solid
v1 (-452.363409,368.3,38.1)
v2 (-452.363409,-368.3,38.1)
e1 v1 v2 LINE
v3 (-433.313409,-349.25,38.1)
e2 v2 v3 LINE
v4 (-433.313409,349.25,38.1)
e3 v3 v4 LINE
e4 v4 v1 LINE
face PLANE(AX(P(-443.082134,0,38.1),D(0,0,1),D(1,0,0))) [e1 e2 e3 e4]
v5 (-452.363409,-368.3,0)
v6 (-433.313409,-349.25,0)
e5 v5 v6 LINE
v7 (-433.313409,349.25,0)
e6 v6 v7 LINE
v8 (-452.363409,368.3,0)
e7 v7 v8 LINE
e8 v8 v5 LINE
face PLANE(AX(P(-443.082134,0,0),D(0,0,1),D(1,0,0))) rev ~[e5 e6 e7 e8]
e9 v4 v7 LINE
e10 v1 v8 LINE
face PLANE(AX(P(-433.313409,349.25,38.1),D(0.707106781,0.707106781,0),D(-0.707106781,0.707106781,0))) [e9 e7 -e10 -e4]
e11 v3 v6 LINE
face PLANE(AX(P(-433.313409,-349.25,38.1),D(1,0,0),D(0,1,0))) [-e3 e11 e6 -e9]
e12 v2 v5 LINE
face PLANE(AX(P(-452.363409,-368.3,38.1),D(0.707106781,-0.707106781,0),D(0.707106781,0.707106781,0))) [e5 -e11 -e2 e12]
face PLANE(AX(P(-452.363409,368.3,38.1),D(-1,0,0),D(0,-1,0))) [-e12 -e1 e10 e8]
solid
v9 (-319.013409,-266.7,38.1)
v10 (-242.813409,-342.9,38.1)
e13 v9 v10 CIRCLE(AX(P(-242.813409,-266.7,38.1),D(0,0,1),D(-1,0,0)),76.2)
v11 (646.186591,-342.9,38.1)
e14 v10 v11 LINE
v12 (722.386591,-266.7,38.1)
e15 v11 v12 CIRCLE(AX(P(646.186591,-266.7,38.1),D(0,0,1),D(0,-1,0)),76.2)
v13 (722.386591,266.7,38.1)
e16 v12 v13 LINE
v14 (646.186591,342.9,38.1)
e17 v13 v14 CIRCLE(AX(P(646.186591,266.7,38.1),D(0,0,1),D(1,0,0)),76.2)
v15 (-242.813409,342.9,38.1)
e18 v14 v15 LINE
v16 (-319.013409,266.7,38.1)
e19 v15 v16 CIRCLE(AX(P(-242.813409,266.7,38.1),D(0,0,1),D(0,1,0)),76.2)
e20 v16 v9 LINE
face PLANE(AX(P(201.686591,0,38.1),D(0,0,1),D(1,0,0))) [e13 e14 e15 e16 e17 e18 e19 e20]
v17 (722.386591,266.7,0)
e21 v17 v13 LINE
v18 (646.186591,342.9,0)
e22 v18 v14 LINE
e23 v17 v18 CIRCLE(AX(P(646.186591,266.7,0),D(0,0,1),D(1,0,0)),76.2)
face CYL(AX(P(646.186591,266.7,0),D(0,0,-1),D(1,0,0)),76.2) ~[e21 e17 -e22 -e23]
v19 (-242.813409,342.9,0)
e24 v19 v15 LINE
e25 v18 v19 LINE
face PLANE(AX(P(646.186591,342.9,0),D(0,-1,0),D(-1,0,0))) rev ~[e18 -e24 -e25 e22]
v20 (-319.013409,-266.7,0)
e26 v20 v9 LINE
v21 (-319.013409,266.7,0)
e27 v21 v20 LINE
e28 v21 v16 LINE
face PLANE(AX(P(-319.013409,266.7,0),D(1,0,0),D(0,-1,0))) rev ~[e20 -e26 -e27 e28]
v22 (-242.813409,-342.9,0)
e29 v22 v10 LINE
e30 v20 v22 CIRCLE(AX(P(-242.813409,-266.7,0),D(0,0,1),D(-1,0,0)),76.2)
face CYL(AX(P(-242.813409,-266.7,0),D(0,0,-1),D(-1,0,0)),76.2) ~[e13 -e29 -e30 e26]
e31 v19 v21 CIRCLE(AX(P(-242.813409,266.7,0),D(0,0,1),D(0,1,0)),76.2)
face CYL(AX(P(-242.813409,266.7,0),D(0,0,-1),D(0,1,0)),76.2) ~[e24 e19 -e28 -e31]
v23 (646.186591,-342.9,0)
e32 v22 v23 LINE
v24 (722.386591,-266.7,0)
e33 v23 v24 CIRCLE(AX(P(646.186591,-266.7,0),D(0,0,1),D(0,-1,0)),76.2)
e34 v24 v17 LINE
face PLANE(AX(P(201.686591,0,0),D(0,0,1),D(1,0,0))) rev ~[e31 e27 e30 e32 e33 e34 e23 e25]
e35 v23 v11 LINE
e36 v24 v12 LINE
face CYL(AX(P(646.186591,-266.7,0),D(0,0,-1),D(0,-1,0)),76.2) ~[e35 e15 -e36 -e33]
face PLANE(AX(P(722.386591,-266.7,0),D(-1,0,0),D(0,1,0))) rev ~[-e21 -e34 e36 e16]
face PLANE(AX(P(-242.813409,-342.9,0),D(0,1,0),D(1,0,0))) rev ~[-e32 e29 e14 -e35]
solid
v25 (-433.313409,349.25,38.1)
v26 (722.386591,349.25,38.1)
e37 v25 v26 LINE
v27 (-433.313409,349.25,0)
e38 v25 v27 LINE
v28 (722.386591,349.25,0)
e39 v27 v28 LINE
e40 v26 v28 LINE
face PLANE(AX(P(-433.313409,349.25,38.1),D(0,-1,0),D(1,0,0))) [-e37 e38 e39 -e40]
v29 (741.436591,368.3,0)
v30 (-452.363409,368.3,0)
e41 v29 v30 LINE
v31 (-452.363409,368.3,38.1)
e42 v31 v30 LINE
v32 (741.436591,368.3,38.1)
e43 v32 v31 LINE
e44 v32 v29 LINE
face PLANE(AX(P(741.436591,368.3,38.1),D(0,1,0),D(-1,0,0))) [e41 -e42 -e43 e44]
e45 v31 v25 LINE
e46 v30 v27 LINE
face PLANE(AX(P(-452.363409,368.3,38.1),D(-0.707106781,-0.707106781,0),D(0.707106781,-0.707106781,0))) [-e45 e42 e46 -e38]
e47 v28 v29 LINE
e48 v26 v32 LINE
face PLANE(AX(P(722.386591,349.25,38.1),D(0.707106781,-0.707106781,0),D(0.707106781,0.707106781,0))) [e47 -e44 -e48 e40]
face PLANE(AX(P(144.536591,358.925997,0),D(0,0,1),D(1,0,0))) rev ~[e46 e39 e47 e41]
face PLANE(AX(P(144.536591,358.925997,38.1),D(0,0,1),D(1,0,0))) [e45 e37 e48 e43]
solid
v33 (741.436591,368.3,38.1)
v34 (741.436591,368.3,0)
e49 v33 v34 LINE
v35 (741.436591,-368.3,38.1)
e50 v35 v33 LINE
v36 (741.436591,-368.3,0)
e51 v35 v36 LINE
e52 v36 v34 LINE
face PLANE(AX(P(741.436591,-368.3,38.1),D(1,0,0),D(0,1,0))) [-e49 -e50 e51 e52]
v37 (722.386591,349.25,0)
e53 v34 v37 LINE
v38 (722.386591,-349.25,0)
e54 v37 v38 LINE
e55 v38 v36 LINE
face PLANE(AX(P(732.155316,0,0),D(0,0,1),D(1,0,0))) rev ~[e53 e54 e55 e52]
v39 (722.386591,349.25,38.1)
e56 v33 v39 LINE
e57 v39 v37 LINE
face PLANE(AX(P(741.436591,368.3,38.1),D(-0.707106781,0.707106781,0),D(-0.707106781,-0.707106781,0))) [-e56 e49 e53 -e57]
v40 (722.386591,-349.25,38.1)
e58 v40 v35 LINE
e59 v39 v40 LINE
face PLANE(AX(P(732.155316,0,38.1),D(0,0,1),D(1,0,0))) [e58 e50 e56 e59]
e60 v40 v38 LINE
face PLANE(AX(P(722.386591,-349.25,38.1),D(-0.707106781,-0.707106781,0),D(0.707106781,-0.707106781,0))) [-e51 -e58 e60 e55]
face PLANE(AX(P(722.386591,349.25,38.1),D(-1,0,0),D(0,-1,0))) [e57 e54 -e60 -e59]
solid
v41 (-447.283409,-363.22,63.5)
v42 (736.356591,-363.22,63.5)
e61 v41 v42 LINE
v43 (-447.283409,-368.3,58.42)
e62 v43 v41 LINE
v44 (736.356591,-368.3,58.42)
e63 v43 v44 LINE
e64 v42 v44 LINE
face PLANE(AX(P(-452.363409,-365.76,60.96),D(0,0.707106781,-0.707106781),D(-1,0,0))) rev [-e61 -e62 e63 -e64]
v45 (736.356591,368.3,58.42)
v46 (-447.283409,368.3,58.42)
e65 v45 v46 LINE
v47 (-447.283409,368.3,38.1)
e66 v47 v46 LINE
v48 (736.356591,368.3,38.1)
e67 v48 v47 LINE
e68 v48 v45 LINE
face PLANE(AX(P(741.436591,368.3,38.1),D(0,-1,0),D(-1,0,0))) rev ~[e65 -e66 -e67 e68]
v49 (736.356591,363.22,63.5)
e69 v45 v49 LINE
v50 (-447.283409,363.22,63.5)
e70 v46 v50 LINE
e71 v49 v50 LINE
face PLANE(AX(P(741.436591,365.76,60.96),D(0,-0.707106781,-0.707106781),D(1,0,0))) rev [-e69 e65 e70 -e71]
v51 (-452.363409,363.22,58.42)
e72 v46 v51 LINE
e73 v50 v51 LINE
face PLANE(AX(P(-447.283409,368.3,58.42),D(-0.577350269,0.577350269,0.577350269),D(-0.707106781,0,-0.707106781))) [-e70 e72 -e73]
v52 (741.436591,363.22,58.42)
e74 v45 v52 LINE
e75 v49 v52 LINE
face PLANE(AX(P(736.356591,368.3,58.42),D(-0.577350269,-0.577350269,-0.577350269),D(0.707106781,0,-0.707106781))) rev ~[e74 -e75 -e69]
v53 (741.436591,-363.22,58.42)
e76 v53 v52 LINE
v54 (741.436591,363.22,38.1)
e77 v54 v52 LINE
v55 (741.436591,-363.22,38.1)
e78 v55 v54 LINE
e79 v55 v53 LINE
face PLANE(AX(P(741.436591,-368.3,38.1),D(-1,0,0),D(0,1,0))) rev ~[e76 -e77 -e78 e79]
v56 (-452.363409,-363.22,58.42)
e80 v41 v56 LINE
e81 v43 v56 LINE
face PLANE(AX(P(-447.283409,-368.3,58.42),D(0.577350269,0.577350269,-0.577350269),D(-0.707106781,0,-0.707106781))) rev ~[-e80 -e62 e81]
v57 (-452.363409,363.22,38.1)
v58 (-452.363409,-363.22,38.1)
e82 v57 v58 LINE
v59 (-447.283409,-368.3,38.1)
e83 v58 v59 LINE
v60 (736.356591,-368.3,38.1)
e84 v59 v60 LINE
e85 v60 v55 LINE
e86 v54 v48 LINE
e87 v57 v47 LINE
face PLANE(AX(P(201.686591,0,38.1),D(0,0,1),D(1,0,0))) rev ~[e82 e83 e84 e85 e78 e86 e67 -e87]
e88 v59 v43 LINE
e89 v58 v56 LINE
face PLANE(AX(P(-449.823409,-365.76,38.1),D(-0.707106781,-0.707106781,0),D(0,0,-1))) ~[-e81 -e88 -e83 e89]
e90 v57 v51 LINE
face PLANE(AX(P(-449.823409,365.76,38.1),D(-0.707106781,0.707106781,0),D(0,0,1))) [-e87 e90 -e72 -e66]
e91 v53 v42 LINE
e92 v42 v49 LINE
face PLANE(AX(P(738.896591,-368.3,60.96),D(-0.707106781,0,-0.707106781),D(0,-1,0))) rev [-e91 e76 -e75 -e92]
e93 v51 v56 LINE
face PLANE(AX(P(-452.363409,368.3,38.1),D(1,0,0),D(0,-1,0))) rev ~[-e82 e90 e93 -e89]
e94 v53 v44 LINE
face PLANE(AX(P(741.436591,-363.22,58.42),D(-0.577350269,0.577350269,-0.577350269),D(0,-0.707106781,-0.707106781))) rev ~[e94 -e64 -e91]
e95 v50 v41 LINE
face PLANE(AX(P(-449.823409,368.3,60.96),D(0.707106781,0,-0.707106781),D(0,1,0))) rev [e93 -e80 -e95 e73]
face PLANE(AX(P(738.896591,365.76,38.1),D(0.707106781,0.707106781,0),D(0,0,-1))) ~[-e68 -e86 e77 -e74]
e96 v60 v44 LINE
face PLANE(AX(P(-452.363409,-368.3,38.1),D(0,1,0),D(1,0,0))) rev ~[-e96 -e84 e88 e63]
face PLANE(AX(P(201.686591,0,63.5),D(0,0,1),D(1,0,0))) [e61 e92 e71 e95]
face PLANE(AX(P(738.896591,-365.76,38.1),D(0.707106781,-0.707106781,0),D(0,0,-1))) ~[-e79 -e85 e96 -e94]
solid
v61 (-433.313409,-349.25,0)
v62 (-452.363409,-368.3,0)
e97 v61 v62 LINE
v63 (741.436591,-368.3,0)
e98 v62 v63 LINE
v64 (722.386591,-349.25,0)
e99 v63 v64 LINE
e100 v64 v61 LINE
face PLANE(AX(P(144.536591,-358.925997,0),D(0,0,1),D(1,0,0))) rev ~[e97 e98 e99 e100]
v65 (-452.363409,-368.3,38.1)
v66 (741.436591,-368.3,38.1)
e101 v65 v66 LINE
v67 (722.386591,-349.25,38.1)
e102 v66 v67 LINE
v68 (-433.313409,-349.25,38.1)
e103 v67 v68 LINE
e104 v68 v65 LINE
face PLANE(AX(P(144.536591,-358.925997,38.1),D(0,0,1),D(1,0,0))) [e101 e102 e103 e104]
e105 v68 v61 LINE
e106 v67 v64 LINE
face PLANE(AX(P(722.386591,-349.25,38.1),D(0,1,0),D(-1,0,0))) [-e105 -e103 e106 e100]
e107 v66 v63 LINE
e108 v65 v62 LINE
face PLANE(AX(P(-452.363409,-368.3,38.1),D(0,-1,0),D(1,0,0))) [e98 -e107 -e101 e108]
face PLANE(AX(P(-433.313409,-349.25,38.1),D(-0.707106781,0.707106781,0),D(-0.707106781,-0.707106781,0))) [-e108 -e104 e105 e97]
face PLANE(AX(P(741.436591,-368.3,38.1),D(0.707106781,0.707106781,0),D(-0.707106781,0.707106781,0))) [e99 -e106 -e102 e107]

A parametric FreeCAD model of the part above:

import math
import FreeCAD as App
import Part
import Sketcher
from FreeCAD import Vector
Q = App.Units.Quantity


def edges_at(feature, points):
    """Names of the edges that pass closest to the given points."""
    edges = feature.Shape.Edges
    near = lambda p: min(range(len(edges)), key=lambda i: edges[i].distToShape(Part.Vertex(*p))[0])
    return sorted({f"Edge{near(p) + 1}" for p in points})

doc = App.newDocument("Part")
body = doc.addObject("PartDesign::Body", "Body")

sketch1 = body.newObject("Sketcher::SketchObject", "Sketch")
sketch1.AttachmentSupport = (doc.getObject("XY_Plane"), [""])
sketch1.MapMode = "FlatFace"
sketch1.addGeometry(Part.LineSegment(Vector(-243, -343, 0), Vector(646, -343, 0)), False)
sketch1.addGeometry(Part.ArcOfCircle(Part.Circle(Vector(646, -267, 0), Vector(0, 0, 1), 76), math.radians(-90), math.radians(0)), False)
sketch1.addGeometry(Part.LineSegment(Vector(722, -267, 0), Vector(722, 267, 0)), False)
sketch1.addGeometry(Part.ArcOfCircle(Part.Circle(Vector(646, 267, 0), Vector(0, 0, 1), 76), math.radians(0), math.radians(90)), False)
sketch1.addGeometry(Part.LineSegment(Vector(646, 343, 0), Vector(-243, 343, 0)), False)
sketch1.addGeometry(Part.ArcOfCircle(Part.Circle(Vector(-243, 267, 0), Vector(0, 0, 1), 76), math.radians(90), math.radians(180)), False)
sketch1.addGeometry(Part.LineSegment(Vector(-319, 267, 0), Vector(-319, -267, 0)), False)
sketch1.addGeometry(Part.ArcOfCircle(Part.Circle(Vector(-243, -267, 0), Vector(0, 0, 1), 76), math.radians(180), math.radians(270)), False)
sketch1.addConstraint(Sketcher.Constraint("Tangent", 0, 2, 1, 1))
sketch1.addConstraint(Sketcher.Constraint("Tangent", 1, 2, 2, 1))
sketch1.addConstraint(Sketcher.Constraint("Tangent", 2, 2, 3, 1))
sketch1.addConstraint(Sketcher.Constraint("Tangent", 3, 2, 4, 1))
sketch1.addConstraint(Sketcher.Constraint("Tangent", 4, 2, 5, 1))
sketch1.addConstraint(Sketcher.Constraint("Tangent", 5, 2, 6, 1))
sketch1.addConstraint(Sketcher.Constraint("Tangent", 6, 2, 7, 1))
sketch1.addConstraint(Sketcher.Constraint("Tangent", 7, 2, 0, 1))
sketch1.addConstraint(Sketcher.Constraint("Horizontal", 0))
sketch1.addConstraint(Sketcher.Constraint("Vertical", 2))
sketch1.addConstraint(Sketcher.Constraint("Horizontal", 4))
sketch1.addConstraint(Sketcher.Constraint("Vertical", 6))
sketch1.addConstraint(Sketcher.Constraint("Equal", 1, 3))
sketch1.addConstraint(Sketcher.Constraint("Equal", 3, 5))
sketch1.addConstraint(Sketcher.Constraint("Equal", 5, 7))
sketch1.addConstraint(Sketcher.Constraint("Radius", 1, Q("3 in")))
sketch1.addConstraint(Sketcher.Constraint("DistanceX", 0, 1, 0, 2, Q("35 in")))
sketch1.addConstraint(Sketcher.Constraint("DistanceY", 2, 1, 2, 2, Q("21 in")))
sketch1.addConstraint(Sketcher.Constraint("DistanceY", 1, 3, -1, 1, Q("10.5 in")))
sketch1.addConstraint(Sketcher.Constraint("DistanceX", -1, 1, 1, 3, 646.186591))
pad1 = body.newObject("PartDesign::Pad", "Pad")
pad1.Profile = sketch1
pad1.Length = Q("1.5 in")
body2 = doc.addObject("PartDesign::Body", "Body001")

sketch2 = body2.newObject("Sketcher::SketchObject", "Sketch001")
sketch2.AttachmentSupport = (doc.getObject("XY_Plane001"), [""])
sketch2.MapMode = "FlatFace"
sketch2.AttachmentOffset = App.Placement(Vector(0, 0, 1.5 * 25.4), App.Rotation())
sketch2.addGeometry(Part.LineSegment(Vector(722, 349, 0), Vector(741, 368, 0)), False)
sketch2.addGeometry(Part.LineSegment(Vector(741, 368, 0), Vector(-452, 368, 0)), False)
sketch2.addGeometry(Part.LineSegment(Vector(-452, 368, 0), Vector(-433, 349, 0)), False)
sketch2.addGeometry(Part.LineSegment(Vector(-433, 349, 0), Vector(722, 349, 0)), False)
sketch2.addConstraint(Sketcher.Constraint("Coincident", 0, 2, 1, 1))
sketch2.addConstraint(Sketcher.Constraint("Coincident", 1, 2, 2, 1))
sketch2.addConstraint(Sketcher.Constraint("Coincident", 2, 2, 3, 1))
sketch2.addConstraint(Sketcher.Constraint("Coincident", 3, 2, 0, 1))
sketch2.addConstraint(Sketcher.Constraint("Horizontal", 1))
sketch2.addConstraint(Sketcher.Constraint("Horizontal", 3))
sketch2.addConstraint(Sketcher.Constraint("Perpendicular", 0, 2))
sketch2.addConstraint(Sketcher.Constraint("Equal", 0, 2))
sketch2.addConstraint(Sketcher.Constraint("DistanceX", 1, 2, 1, 1, Q("47 in")))
sketch2.addConstraint(Sketcher.Constraint("DistanceX", 3, 1, 3, 2, Q("45.5 in")))
sketch2.addConstraint(Sketcher.Constraint("DistanceY", -1, 1, 0, 2, Q("14.5 in")))
sketch2.addConstraint(Sketcher.Constraint("DistanceX", -1, 1, 0, 2, 741.436591))
pad2 = body2.newObject("PartDesign::Pad", "Pad001")
pad2.Profile = sketch2
pad2.Length = Q("1.5 in")
pad2.Reversed = True
body3 = doc.addObject("PartDesign::Body", "Body002")

sketch3 = body3.newObject("Sketcher::SketchObject", "Sketch002")
sketch3.AttachmentSupport = (doc.getObject("XY_Plane002"), [""])
sketch3.MapMode = "FlatFace"
sketch3.AttachmentOffset = App.Placement(Vector(0, 0, 1.5 * 25.4), App.Rotation())
sketch3.addGeometry(Part.LineSegment(Vector(-452, -368, 0), Vector(741, -368, 0)), False)
sketch3.addGeometry(Part.LineSegment(Vector(741, -368, 0), Vector(722, -349, 0)), False)
sketch3.addGeometry(Part.LineSegment(Vector(722, -349, 0), Vector(-433, -349, 0)), False)
sketch3.addGeometry(Part.LineSegment(Vector(-433, -349, 0), Vector(-452, -368, 0)), False)
sketch3.addConstraint(Sketcher.Constraint("Coincident", 0, 2, 1, 1))
sketch3.addConstraint(Sketcher.Constraint("Coincident", 1, 2, 2, 1))
sketch3.addConstraint(Sketcher.Constraint("Coincident", 2, 2, 3, 1))
sketch3.addConstraint(Sketcher.Constraint("Coincident", 3, 2, 0, 1))
sketch3.addConstraint(Sketcher.Constraint("Horizontal", 0))
sketch3.addConstraint(Sketcher.Constraint("Horizontal", 2))
sketch3.addConstraint(Sketcher.Constraint("Perpendicular", 1, 3))
sketch3.addConstraint(Sketcher.Constraint("Equal", 1, 3))
sketch3.addConstraint(Sketcher.Constraint("DistanceX", 0, 1, 0, 2, Q("47 in")))
sketch3.addConstraint(Sketcher.Constraint("DistanceX", 2, 2, 2, 1, Q("45.5 in")))
sketch3.addConstraint(Sketcher.Constraint("DistanceY", 0, 2, -1, 1, Q("14.5 in")))
sketch3.addConstraint(Sketcher.Constraint("DistanceX", -1, 1, 0, 2, 741.436591))
pad3 = body3.newObject("PartDesign::Pad", "Pad002")
pad3.Profile = sketch3
pad3.Length = Q("1.5 in")
pad3.Reversed = True
body4 = doc.addObject("PartDesign::Body", "Body003")

sketch4 = body4.newObject("Sketcher::SketchObject", "Sketch003")
sketch4.AttachmentSupport = (doc.getObject("XY_Plane003"), [""])
sketch4.MapMode = "FlatFace"
sketch4.AttachmentOffset = App.Placement(Vector(0, 0, 1.5 * 25.4), App.Rotation())
sketch4.addGeometry(Part.LineSegment(Vector(-452, 368, 0), Vector(-452, -368, 0)), False)
sketch4.addGeometry(Part.LineSegment(Vector(-452, -368, 0), Vector(741, -368, 0)), False)
sketch4.addGeometry(Part.LineSegment(Vector(741, -368, 0), Vector(741, 368, 0)), False)
sketch4.addGeometry(Part.LineSegment(Vector(741, 368, 0), Vector(-452, 368, 0)), False)
sketch4.addConstraint(Sketcher.Constraint("Coincident", 0, 2, 1, 1))
sketch4.addConstraint(Sketcher.Constraint("Coincident", 1, 2, 2, 1))
sketch4.addConstraint(Sketcher.Constraint("Coincident", 2, 2, 3, 1))
sketch4.addConstraint(Sketcher.Constraint("Coincident", 3, 2, 0, 1))
sketch4.addConstraint(Sketcher.Constraint("Vertical", 0))
sketch4.addConstraint(Sketcher.Constraint("Horizontal", 1))
sketch4.addConstraint(Sketcher.Constraint("Vertical", 2))
sketch4.addConstraint(Sketcher.Constraint("Horizontal", 3))
sketch4.addConstraint(Sketcher.Constraint("DistanceX", 1, 1, 1, 2, Q("47 in")))
sketch4.addConstraint(Sketcher.Constraint("DistanceY", 0, 2, 0, 1, Q("29 in")))
sketch4.addConstraint(Sketcher.Constraint("DistanceY", 0, 2, -1, 1, Q("14.5 in")))
sketch4.addConstraint(Sketcher.Constraint("DistanceX", 0, 2, -1, 1, 452.363409))
pad4 = body4.newObject("PartDesign::Pad", "Pad003")
pad4.Profile = sketch4
pad4.Length = Q("1 in")
doc.recompute()

chamfer = body4.newObject("PartDesign::Chamfer", "Chamfer")
chamfer.Base = (pad4, edges_at(pad4, [
    (-452.363, 0, 63.5),
    (144.537, -368.3, 63.5),
    (741.437, 0, 63.5),
    (144.537, 368.3, 63.5),
    (741.437, -368.3, 50.8),
    (741.437, 368.3, 50.8),
    (-452.363, -368.3, 50.8),
    (-452.363, 368.3, 50.8),
]))
chamfer.Size = Q("0.2 in")
body5 = doc.addObject("PartDesign::Body", "Body004")

sketch5 = body5.newObject("Sketcher::SketchObject", "Sketch004")
sketch5.AttachmentSupport = (doc.getObject("XY_Plane004"), [""])
sketch5.MapMode = "FlatFace"
sketch5.AttachmentOffset = App.Placement(Vector(0, 0, 1.5 * 25.4), App.Rotation())
sketch5.addGeometry(Part.LineSegment(Vector(-452, 368, 0), Vector(-452, -368, 0)), False)
sketch5.addGeometry(Part.LineSegment(Vector(-452, -368, 0), Vector(-433, -349, 0)), False)
sketch5.addGeometry(Part.LineSegment(Vector(-433, -349, 0), Vector(-433, 349, 0)), False)
sketch5.addGeometry(Part.LineSegment(Vector(-433, 349, 0), Vector(-452, 368, 0)), False)
sketch5.addConstraint(Sketcher.Constraint("Coincident", 0, 2, 1, 1))
sketch5.addConstraint(Sketcher.Constraint("Coincident", 1, 2, 2, 1))
sketch5.addConstraint(Sketcher.Constraint("Coincident", 2, 2, 3, 1))
sketch5.addConstraint(Sketcher.Constraint("Coincident", 3, 2, 0, 1))
sketch5.addConstraint(Sketcher.Constraint("Vertical", 0))
sketch5.addConstraint(Sketcher.Constraint("Vertical", 2))
sketch5.addConstraint(Sketcher.Constraint("Perpendicular", 1, 3))
sketch5.addConstraint(Sketcher.Constraint("Equal", 1, 3))
sketch5.addConstraint(Sketcher.Constraint("DistanceY", 0, 2, 0, 1, Q("29 in")))
sketch5.addConstraint(Sketcher.Constraint("DistanceY", 2, 1, 2, 2, Q("27.5 in")))
sketch5.addConstraint(Sketcher.Constraint("DistanceY", 0, 2, -1, 1, Q("14.5 in")))
sketch5.addConstraint(Sketcher.Constraint("DistanceX", 0, 2, -1, 1, 452.363409))
pad5 = body5.newObject("PartDesign::Pad", "Pad004")
pad5.Profile = sketch5
pad5.Length = Q("1.5 in")
pad5.Reversed = True
body6 = doc.addObject("PartDesign::Body", "Body005")

sketch6 = body6.newObject("Sketcher::SketchObject", "Sketch005")
sketch6.AttachmentSupport = (doc.getObject("XY_Plane005"), [""])
sketch6.MapMode = "FlatFace"
sketch6.AttachmentOffset = App.Placement(Vector(0, 0, 1.5 * 25.4), App.Rotation())
sketch6.addGeometry(Part.LineSegment(Vector(722, -349, 0), Vector(741, -368, 0)), False)
sketch6.addGeometry(Part.LineSegment(Vector(741, -368, 0), Vector(741, 368, 0)), False)
sketch6.addGeometry(Part.LineSegment(Vector(741, 368, 0), Vector(722, 349, 0)), False)
sketch6.addGeometry(Part.LineSegment(Vector(722, 349, 0), Vector(722, -349, 0)), False)
sketch6.addConstraint(Sketcher.Constraint("Coincident", 0, 2, 1, 1))
sketch6.addConstraint(Sketcher.Constraint("Coincident", 1, 2, 2, 1))
sketch6.addConstraint(Sketcher.Constraint("Coincident", 2, 2, 3, 1))
sketch6.addConstraint(Sketcher.Constraint("Coincident", 3, 2, 0, 1))
sketch6.addConstraint(Sketcher.Constraint("Vertical", 1))
sketch6.addConstraint(Sketcher.Constraint("Vertical", 3))
sketch6.addConstraint(Sketcher.Constraint("Perpendicular", 0, 2))
sketch6.addConstraint(Sketcher.Constraint("Equal", 0, 2))
sketch6.addConstraint(Sketcher.Constraint("DistanceY", 1, 1, 1, 2, Q("29 in")))
sketch6.addConstraint(Sketcher.Constraint("DistanceY", 3, 2, 3, 1, Q("27.5 in")))
sketch6.addConstraint(Sketcher.Constraint("DistanceY", 0, 2, -1, 1, Q("14.5 in")))
sketch6.addConstraint(Sketcher.Constraint("DistanceX", -1, 1, 0, 2, 741.436591))
pad6 = body6.newObject("PartDesign::Pad", "Pad005")
pad6.Profile = sketch6
pad6.Length = Q("1.5 in")
pad6.Reversed = True

doc.recompute()
